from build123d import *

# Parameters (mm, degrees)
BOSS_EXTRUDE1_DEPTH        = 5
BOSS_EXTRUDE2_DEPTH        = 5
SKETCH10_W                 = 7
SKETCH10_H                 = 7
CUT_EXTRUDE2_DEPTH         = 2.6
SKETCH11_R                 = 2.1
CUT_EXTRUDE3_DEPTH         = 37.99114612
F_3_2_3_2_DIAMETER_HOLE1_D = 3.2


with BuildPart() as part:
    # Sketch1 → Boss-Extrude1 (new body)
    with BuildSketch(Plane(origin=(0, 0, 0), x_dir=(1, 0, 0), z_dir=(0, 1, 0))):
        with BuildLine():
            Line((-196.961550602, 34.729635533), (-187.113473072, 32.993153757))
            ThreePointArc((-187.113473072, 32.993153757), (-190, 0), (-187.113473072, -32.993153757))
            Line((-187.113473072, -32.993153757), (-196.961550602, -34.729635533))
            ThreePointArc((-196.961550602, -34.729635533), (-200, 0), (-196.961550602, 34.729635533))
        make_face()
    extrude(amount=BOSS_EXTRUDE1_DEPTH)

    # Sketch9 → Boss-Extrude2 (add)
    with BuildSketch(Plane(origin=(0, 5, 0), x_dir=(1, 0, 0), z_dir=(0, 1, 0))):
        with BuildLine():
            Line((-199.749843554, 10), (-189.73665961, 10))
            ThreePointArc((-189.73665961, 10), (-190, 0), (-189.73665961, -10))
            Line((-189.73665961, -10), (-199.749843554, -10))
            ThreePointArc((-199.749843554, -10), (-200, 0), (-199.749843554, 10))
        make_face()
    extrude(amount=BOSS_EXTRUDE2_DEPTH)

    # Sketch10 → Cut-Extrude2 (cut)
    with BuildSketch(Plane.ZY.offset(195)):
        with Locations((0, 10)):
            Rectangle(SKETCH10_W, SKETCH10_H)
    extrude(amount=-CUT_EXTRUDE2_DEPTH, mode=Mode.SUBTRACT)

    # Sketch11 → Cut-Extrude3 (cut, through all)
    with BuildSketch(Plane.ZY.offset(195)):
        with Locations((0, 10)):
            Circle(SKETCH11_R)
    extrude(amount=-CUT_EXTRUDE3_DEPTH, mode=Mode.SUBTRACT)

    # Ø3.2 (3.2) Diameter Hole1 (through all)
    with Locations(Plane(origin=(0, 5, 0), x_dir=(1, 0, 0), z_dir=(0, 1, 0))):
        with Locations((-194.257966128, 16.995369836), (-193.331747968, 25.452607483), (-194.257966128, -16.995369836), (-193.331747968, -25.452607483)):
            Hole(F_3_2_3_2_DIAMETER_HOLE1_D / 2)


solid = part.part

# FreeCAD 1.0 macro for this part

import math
import FreeCAD as App
import Part
import Sketcher

V = App.Vector
Q = App.Units.Quantity

doc = App.newDocument("Part")
params = doc.addObject("Spreadsheet::Sheet", "Params")
for row, (alias, value) in enumerate([
    ("sketch1_radius", "200 mm"),
    ("sketch1_radius2", "190 mm"),
    ("pad1_length", "5 mm"),
    ("sketch2_radius", "200 mm"),
    ("sketch2_radius2", "190 mm"),
    ("pad2_length", "5 mm"),
    ("sketch3_width", "7 mm"),
    ("pocket1_length", "2.6 mm"),
    ("sketch4_diameter", "4.2 mm"),
    ("sketch5_diameter", "3.2 mm"),
    ("hole_diameter", "3.2 mm"),
], start=1):
    params.set(f"A{row}", alias)
    params.set(f"B{row}", "=" + value)
    params.setAlias(f"B{row}", alias)

body = doc.addObject("PartDesign::Body", "Body")

sketch1 = body.newObject("Sketcher::SketchObject", "Sketch")
sketch1.AttachmentSupport = (doc.getObject("XZ_Plane"), [""])
sketch1.MapMode = "FlatFace"
sketch1.addGeometry([
    Part.LineSegment(V(-187.113473, -32.993154, 0), V(-196.961551, -34.729636, 0)),
    Part.ArcOfCircle(Part.Circle(V(0, 0, 0), V(0, 0, 1), 200), math.radians(170), math.radians(190)),
    Part.LineSegment(V(-196.961551, 34.729636, 0), V(-187.113473, 32.993154, 0)),
    Part.ArcOfCircle(Part.Circle(V(0, 0, 0), V(0, 0, 1), 190), math.radians(170), math.radians(190)),
], False)
sketch1.addConstraint([
    Sketcher.Constraint("Coincident", 0, 2, 1, 2),
    Sketcher.Constraint("Coincident", 1, 1, 2, 1),
    Sketcher.Constraint("Coincident", 2, 2, 3, 1),
    Sketcher.Constraint("Coincident", 3, 2, 0, 1),
    Sketcher.Constraint("Coincident", 1, 3, -1, 1),
    Sketcher.Constraint("Coincident", 3, 3, -1, 1),
    Sketcher.Constraint("Vertical", 0, 2, 1, 1),
    Sketcher.Constraint("Vertical", 2, 2, 3, 2),
    Sketcher.Constraint("Radius", 1, 200.0),
    Sketcher.Constraint("Radius", 3, 190.0),
    Sketcher.Constraint("Angle", 0, Q("-170 deg")),
    Sketcher.Constraint("DistanceX", 0, 2, -1, 1, 196.961551),
])
sketch1.setExpression("Constraints[8]", "Params.sketch1_radius")
sketch1.setExpression("Constraints[9]", "Params.sketch1_radius2")
pad1 = body.newObject("PartDesign::Pad", "Pad")
pad1.Profile = sketch1
pad1.setExpression("Length", "Params.pad1_length")
pad1.Reversed = True

sketch2 = body.newObject("Sketcher::SketchObject", "Sketch001")
sketch2.AttachmentSupport = (doc.getObject("XZ_Plane"), [""])
sketch2.MapMode = "FlatFace"
sketch2.AttachmentOffset = App.Placement(V(0, 0, -5), App.Rotation())
sketch2.addGeometry([
    Part.LineSegment(V(-189.73666, -10, 0), V(-199.749844, -10, 0)),
    Part.ArcOfCircle(Part.Circle(V(0, 0, 0), V(0, 0, 1), 200), math.radians(177.134016), math.radians(182.865984)),
    Part.LineSegment(V(-199.749844, 10, 0), V(-189.73666, 10, 0)),
    Part.ArcOfCircle(Part.Circle(V(0, 0, 0), V(0, 0, 1), 190), math.radians(176.983039), math.radians(183.016961)),
], False)
sketch2.addConstraint([
    Sketcher.Constraint("Coincident", 0, 2, 1, 2),
    Sketcher.Constraint("Coincident", 1, 1, 2, 1),
    Sketcher.Constraint("Coincident", 2, 2, 3, 1),
    Sketcher.Constraint("Coincident", 3, 2, 0, 1),
    Sketcher.Constraint("Horizontal", 0),
    Sketcher.Constraint("Horizontal", 2),
    Sketcher.Constraint("Coincident", 1, 3, -1, 1),
    Sketcher.Constraint("Coincident", 3, 3, -1, 1),
    Sketcher.Constraint("Vertical", 0, 2, 1, 1),
    Sketcher.Constraint("Radius", 1, 200.0),
    Sketcher.Constraint("Radius", 3, 190.0),
    Sketcher.Constraint("DistanceY", 0, 2, -1, 1, 10.0),
])
sketch2.setExpression("Constraints[9]", "Params.sketch2_radius")
sketch2.setExpression("Constraints[10]", "Params.sketch2_radius2")
pad2 = body.newObject("PartDesign::Pad", "Pad001")
pad2.Profile = sketch2
pad2.setExpression("Length", "Params.pad2_length")
pad2.Reversed = True

sketch3 = body.newObject("Sketcher::SketchObject", "Sketch002")
sketch3.AttachmentSupport = (doc.getObject("YZ_Plane"), [""])
sketch3.MapMode = "FlatFace"
sketch3.AttachmentOffset = App.Placement(V(0, 0, -195), App.Rotation())
sketch3.addGeometry([
    Part.LineSegment(V(13.5, -3.5, 0), V(6.5, -3.5, 0)),
    Part.LineSegment(V(6.5, -3.5, 0), V(6.5, 3.5, 0)),
    Part.LineSegment(V(6.5, 3.5, 0), V(13.5, 3.5, 0)),
    Part.LineSegment(V(13.5, 3.5, 0), V(13.5, -3.5, 0)),
], False)
sketch3.addConstraint([
    Sketcher.Constraint("Coincident", 0, 2, 1, 1),
    Sketcher.Constraint("Coincident", 1, 2, 2, 1),
    Sketcher.Constraint("Coincident", 2, 2, 3, 1),
    Sketcher.Constraint("Coincident", 3, 2, 0, 1),
    Sketcher.Constraint("Horizontal", 0),
    Sketcher.Constraint("Vertical", 1),
    Sketcher.Constraint("Horizontal", 2),
    Sketcher.Constraint("Vertical", 3),
    Sketcher.Constraint("Equal", 2, 1),
    Sketcher.Constraint("DistanceX", 0, 2, 0, 1, 7.0),
    Sketcher.Constraint("DistanceX", -1, 1, 0, 2, 6.5),
    Sketcher.Constraint("DistanceY", 0, 2, -1, 1, 3.5),
])
sketch3.setExpression("Constraints[9]", "Params.sketch3_width")
pocket1 = body.newObject("PartDesign::Pocket", "Pocket")
pocket1.Profile = sketch3
pocket1.setExpression("Length", "Params.pocket1_length")
pocket1.Reversed = True

sketch4 = body.newObject("Sketcher::SketchObject", "Sketch003")
sketch4.AttachmentSupport = (doc.getObject("YZ_Plane"), [""])
sketch4.MapMode = "FlatFace"
sketch4.AttachmentOffset = App.Placement(V(0, 0, -195), App.Rotation())
sketch4.addGeometry(Part.Circle(V(10, 0, 0), V(0, 0, 1), 2.1), False)
sketch4.addConstraint([
    Sketcher.Constraint("PointOnObject", 0, 3, -1),
    Sketcher.Constraint("Diameter", 0, 4.2),
    Sketcher.Constraint("DistanceX", -1, 1, 0, 3, 10.0),
])
sketch4.setExpression("Constraints[1]", "Params.sketch4_diameter")
pocket2 = body.newObject("PartDesign::Pocket", "Pocket001")
pocket2.Profile = sketch4
pocket2.Type = "ThroughAll"
pocket2.Reversed = True

sketch5 = body.newObject("Sketcher::SketchObject", "Sketch004")
sketch5.AttachmentSupport = (doc.getObject("XZ_Plane"), [""])
sketch5.MapMode = "FlatFace"
sketch5.AttachmentOffset = App.Placement(V(0, 0, -5), App.Rotation())
sketch5.addGeometry([
    Part.Circle(V(-194.257966, -16.99537, 0), V(0, 0, 1), 1.6),
    Part.Circle(V(-193.331748, -25.452607, 0), V(0, 0, 1), 1.6),
    Part.Circle(V(-194.257966, 16.99537, 0), V(0, 0, 1), 1.6),
    Part.Circle(V(-193.331748, 25.452607, 0), V(0, 0, 1), 1.6),
], False)
sketch5.addConstraint([
    Sketcher.Constraint("Equal", 0, 1),
    Sketcher.Constraint("Equal", 1, 2),
    Sketcher.Constraint("Equal", 2, 3),
    Sketcher.Constraint("Symmetric", 0, 3, 2, 3, -1),
    Sketcher.Constraint("Symmetric", 1, 3, 3, 3, -1),
    Sketcher.Constraint("Diameter", 0, 3.2),
    Sketcher.Constraint("DistanceY", 0, 3, -1, 1, 16.99537),
    Sketcher.Constraint("DistanceX", 0, 3, 1, 3, 0.926218),
    Sketcher.Constraint("DistanceX", 0, 3, -1, 1, 194.257966),
    Sketcher.Constraint("DistanceY", 1, 3, -1, 1, 25.452607),
])
sketch5.setExpression("Constraints[5]", "Params.sketch5_diameter")
doc.recompute()
hole = body.newObject("PartDesign::Hole", "Hole")
hole.Profile = sketch5
hole.ThreadType = "None"
hole.setExpression("Diameter", "Params.hole_diameter")
hole.DepthType = "ThroughAll"
hole.Reversed = True

doc.recompute()
